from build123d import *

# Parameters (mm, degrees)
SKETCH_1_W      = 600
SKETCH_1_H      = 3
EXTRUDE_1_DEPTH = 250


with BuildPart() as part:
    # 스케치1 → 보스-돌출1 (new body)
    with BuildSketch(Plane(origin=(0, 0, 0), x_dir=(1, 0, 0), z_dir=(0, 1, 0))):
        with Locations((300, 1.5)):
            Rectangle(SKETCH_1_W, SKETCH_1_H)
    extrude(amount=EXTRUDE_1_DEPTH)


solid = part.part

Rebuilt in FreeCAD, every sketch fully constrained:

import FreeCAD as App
import Part
import Sketcher

V = App.Vector
Q = App.Units.Quantity


def add_polygon(sketch, points):
    """Adds a closed chain of lines whose ends are joined by coincident constraints."""
    first, n = sketch.GeometryCount, len(points)
    for a, b in zip(points, points[1:] + points[:1]):
        sketch.addGeometry(Part.LineSegment(App.Vector(*a, 0), App.Vector(*b, 0)), False)
    for i in range(n):
        sketch.addConstraint(Sketcher.Constraint("Coincident", first + i, 2, first + (i + 1) % n, 1))

doc = App.newDocument("Part")
body = doc.addObject("PartDesign::Body", "Body")

# Sketch on XZ plane
sketch1 = body.newObject("Sketcher::SketchObject", "Sketch")
sketch1.AttachmentSupport = (doc.getObject("XZ_Plane"), [""])
sketch1.MapMode = "FlatFace"
add_polygon(sketch1, [(0, -3), (0, 0), (600, 0), (600, -3)])  # lines 0-3
sketch1.addConstraint(Sketcher.Constraint("Vertical", 0))
sketch1.addConstraint(Sketcher.Constraint("Horizontal", 1))
sketch1.addConstraint(Sketcher.Constraint("Vertical", 2))
sketch1.addConstraint(Sketcher.Constraint("Horizontal", 3))
sketch1.addConstraint(Sketcher.Constraint("Coincident", 0, 2, -1, 1))
sketch1.addConstraint(Sketcher.Constraint("DistanceX", 1, 1, 1, 2, Q("600 mm")))
sketch1.addConstraint(Sketcher.Constraint("DistanceY", 0, 1, 0, 2, Q("3 mm")))
pad1 = body.newObject("PartDesign::Pad", "Pad")
pad1.Profile = sketch1
pad1.Length = 250
pad1.Reversed = True

doc.recompute()
